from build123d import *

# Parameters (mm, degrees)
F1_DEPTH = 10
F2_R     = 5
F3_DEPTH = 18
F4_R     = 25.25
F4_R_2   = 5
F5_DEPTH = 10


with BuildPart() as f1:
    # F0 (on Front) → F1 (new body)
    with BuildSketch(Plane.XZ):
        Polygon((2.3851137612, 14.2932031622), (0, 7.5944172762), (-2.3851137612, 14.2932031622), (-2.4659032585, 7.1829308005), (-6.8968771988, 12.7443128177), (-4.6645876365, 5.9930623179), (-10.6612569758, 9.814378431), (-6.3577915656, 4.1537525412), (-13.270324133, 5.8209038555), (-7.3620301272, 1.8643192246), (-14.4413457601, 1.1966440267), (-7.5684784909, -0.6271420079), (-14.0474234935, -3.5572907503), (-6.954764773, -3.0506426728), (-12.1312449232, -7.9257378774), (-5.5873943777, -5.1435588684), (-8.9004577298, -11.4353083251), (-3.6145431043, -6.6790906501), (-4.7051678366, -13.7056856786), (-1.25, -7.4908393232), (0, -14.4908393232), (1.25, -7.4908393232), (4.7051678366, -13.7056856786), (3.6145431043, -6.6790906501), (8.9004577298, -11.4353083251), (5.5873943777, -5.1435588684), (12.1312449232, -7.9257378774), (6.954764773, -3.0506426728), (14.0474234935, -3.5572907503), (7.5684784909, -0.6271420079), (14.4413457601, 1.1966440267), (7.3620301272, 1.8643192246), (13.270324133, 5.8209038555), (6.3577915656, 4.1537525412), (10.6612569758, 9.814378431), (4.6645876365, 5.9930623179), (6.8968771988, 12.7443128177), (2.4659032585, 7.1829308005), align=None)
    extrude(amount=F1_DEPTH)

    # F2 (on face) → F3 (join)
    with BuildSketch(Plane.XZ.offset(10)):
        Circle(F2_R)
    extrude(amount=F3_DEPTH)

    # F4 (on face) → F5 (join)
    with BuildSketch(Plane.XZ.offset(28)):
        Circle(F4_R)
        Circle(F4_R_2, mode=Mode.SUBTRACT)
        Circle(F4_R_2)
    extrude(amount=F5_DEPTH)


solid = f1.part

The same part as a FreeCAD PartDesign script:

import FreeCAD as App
import Part
import Sketcher
from FreeCAD import Vector
Q = App.Units.Quantity

doc = App.newDocument("Part")
body = doc.addObject("PartDesign::Body", "Body")

# Sketch on XZ plane
sketch1 = body.newObject("Sketcher::SketchObject", "Sketch")
sketch1.AttachmentSupport = (doc.getObject("XZ_Plane"), [""])
sketch1.MapMode = "FlatFace"
sketch1.addGeometry(Part.LineSegment(Vector(2, 14, 0), Vector(0, 8, 0)), False)
sketch1.addGeometry(Part.LineSegment(Vector(0, 8, 0), Vector(-2, 14, 0)), False)
sketch1.addGeometry(Part.LineSegment(Vector(-2, 14, 0), Vector(-2, 7, 0)), False)
sketch1.addGeometry(Part.LineSegment(Vector(-2, 7, 0), Vector(-7, 13, 0)), False)
sketch1.addGeometry(Part.LineSegment(Vector(-7, 13, 0), Vector(-5, 6, 0)), False)
sketch1.addGeometry(Part.LineSegment(Vector(-5, 6, 0), Vector(-11, 10, 0)), False)
sketch1.addGeometry(Part.LineSegment(Vector(-11, 10, 0), Vector(-6, 4, 0)), False)
sketch1.addGeometry(Part.LineSegment(Vector(-6, 4, 0), Vector(-13, 6, 0)), False)
sketch1.addGeometry(Part.LineSegment(Vector(-13, 6, 0), Vector(-7, 2, 0)), False)
sketch1.addGeometry(Part.LineSegment(Vector(-7, 2, 0), Vector(-14, 1, 0)), False)
sketch1.addGeometry(Part.LineSegment(Vector(-14, 1, 0), Vector(-8, -1, 0)), False)
sketch1.addGeometry(Part.LineSegment(Vector(-8, -1, 0), Vector(-14, -4, 0)), False)
sketch1.addGeometry(Part.LineSegment(Vector(-14, -4, 0), Vector(-7, -3, 0)), False)
sketch1.addGeometry(Part.LineSegment(Vector(-7, -3, 0), Vector(-12, -8, 0)), False)
sketch1.addGeometry(Part.LineSegment(Vector(-12, -8, 0), Vector(-6, -5, 0)), False)
sketch1.addGeometry(Part.LineSegment(Vector(-6, -5, 0), Vector(-9, -11, 0)), False)
sketch1.addGeometry(Part.LineSegment(Vector(-9, -11, 0), Vector(-4, -7, 0)), False)
sketch1.addGeometry(Part.LineSegment(Vector(-4, -7, 0), Vector(-5, -14, 0)), False)
sketch1.addGeometry(Part.LineSegment(Vector(-5, -14, 0), Vector(-1, -7, 0)), False)
sketch1.addGeometry(Part.LineSegment(Vector(-1, -7, 0), Vector(0, -14, 0)), False)
sketch1.addGeometry(Part.LineSegment(Vector(0, -14, 0), Vector(1, -7, 0)), False)
sketch1.addGeometry(Part.LineSegment(Vector(1, -7, 0), Vector(5, -14, 0)), False)
sketch1.addGeometry(Part.LineSegment(Vector(5, -14, 0), Vector(4, -7, 0)), False)
sketch1.addGeometry(Part.LineSegment(Vector(4, -7, 0), Vector(9, -11, 0)), False)
sketch1.addGeometry(Part.LineSegment(Vector(9, -11, 0), Vector(6, -5, 0)), False)
sketch1.addGeometry(Part.LineSegment(Vector(6, -5, 0), Vector(12, -8, 0)), False)
sketch1.addGeometry(Part.LineSegment(Vector(12, -8, 0), Vector(7, -3, 0)), False)
sketch1.addGeometry(Part.LineSegment(Vector(7, -3, 0), Vector(14, -4, 0)), False)
sketch1.addGeometry(Part.LineSegment(Vector(14, -4, 0), Vector(8, -1, 0)), False)
sketch1.addGeometry(Part.LineSegment(Vector(8, -1, 0), Vector(14, 1, 0)), False)
sketch1.addGeometry(Part.LineSegment(Vector(14, 1, 0), Vector(7, 2, 0)), False)
sketch1.addGeometry(Part.LineSegment(Vector(7, 2, 0), Vector(13, 6, 0)), False)
sketch1.addGeometry(Part.LineSegment(Vector(13, 6, 0), Vector(6, 4, 0)), False)
sketch1.addGeometry(Part.LineSegment(Vector(6, 4, 0), Vector(11, 10, 0)), False)
sketch1.addGeometry(Part.LineSegment(Vector(11, 10, 0), Vector(5, 6, 0)), False)
sketch1.addGeometry(Part.LineSegment(Vector(5, 6, 0), Vector(7, 13, 0)), False)
sketch1.addGeometry(Part.LineSegment(Vector(7, 13, 0), Vector(2, 7, 0)), False)
sketch1.addGeometry(Part.LineSegment(Vector(2, 7, 0), Vector(2, 14, 0)), False)
sketch1.addConstraint(Sketcher.Constraint("Coincident", 0, 2, 1, 1))
sketch1.addConstraint(Sketcher.Constraint("Coincident", 1, 2, 2, 1))
sketch1.addConstraint(Sketcher.Constraint("Coincident", 2, 2, 3, 1))
sketch1.addConstraint(Sketcher.Constraint("Coincident", 3, 2, 4, 1))
sketch1.addConstraint(Sketcher.Constraint("Coincident", 4, 2, 5, 1))
sketch1.addConstraint(Sketcher.Constraint("Coincident", 5, 2, 6, 1))
sketch1.addConstraint(Sketcher.Constraint("Coincident", 6, 2, 7, 1))
sketch1.addConstraint(Sketcher.Constraint("Coincident", 7, 2, 8, 1))
sketch1.addConstraint(Sketcher.Constraint("Coincident", 8, 2, 9, 1))
sketch1.addConstraint(Sketcher.Constraint("Coincident", 9, 2, 10, 1))
sketch1.addConstraint(Sketcher.Constraint("Coincident", 10, 2, 11, 1))
sketch1.addConstraint(Sketcher.Constraint("Coincident", 11, 2, 12, 1))
sketch1.addConstraint(Sketcher.Constraint("Coincident", 12, 2, 13, 1))
sketch1.addConstraint(Sketcher.Constraint("Coincident", 13, 2, 14, 1))
sketch1.addConstraint(Sketcher.Constraint("Coincident", 14, 2, 15, 1))
sketch1.addConstraint(Sketcher.Constraint("Coincident", 15, 2, 16, 1))
sketch1.addConstraint(Sketcher.Constraint("Coincident", 16, 2, 17, 1))
sketch1.addConstraint(Sketcher.Constraint("Coincident", 17, 2, 18, 1))
sketch1.addConstraint(Sketcher.Constraint("Coincident", 18, 2, 19, 1))
sketch1.addConstraint(Sketcher.Constraint("Coincident", 19, 2, 20, 1))
sketch1.addConstraint(Sketcher.Constraint("Coincident", 20, 2, 21, 1))
sketch1.addConstraint(Sketcher.Constraint("Coincident", 21, 2, 22, 1))
sketch1.addConstraint(Sketcher.Constraint("Coincident", 22, 2, 23, 1))
sketch1.addConstraint(Sketcher.Constraint("Coincident", 23, 2, 24, 1))
sketch1.addConstraint(Sketcher.Constraint("Coincident", 24, 2, 25, 1))
sketch1.addConstraint(Sketcher.Constraint("Coincident", 25, 2, 26, 1))
sketch1.addConstraint(Sketcher.Constraint("Coincident", 26, 2, 27, 1))
sketch1.addConstraint(Sketcher.Constraint("Coincident", 27, 2, 28, 1))
sketch1.addConstraint(Sketcher.Constraint("Coincident", 28, 2, 29, 1))
sketch1.addConstraint(Sketcher.Constraint("Coincident", 29, 2, 30, 1))
sketch1.addConstraint(Sketcher.Constraint("Coincident", 30, 2, 31, 1))
sketch1.addConstraint(Sketcher.Constraint("Coincident", 31, 2, 32, 1))
sketch1.addConstraint(Sketcher.Constraint("Coincident", 32, 2, 33, 1))
sketch1.addConstraint(Sketcher.Constraint("Coincident", 33, 2, 34, 1))
sketch1.addConstraint(Sketcher.Constraint("Coincident", 34, 2, 35, 1))
sketch1.addConstraint(Sketcher.Constraint("Coincident", 35, 2, 36, 1))
sketch1.addConstraint(Sketcher.Constraint("Coincident", 36, 2, 37, 1))
sketch1.addConstraint(Sketcher.Constraint("Coincident", 37, 2, 0, 1))
sketch1.addConstraint(Sketcher.Constraint("Symmetric", 18, 2, 20, 2, -2))
sketch1.addConstraint(Sketcher.Constraint("Symmetric", 17, 2, 21, 2, -2))
sketch1.addConstraint(Sketcher.Constraint("Symmetric", 16, 2, 22, 2, -2))
sketch1.addConstraint(Sketcher.Constraint("Symmetric", 15, 2, 23, 2, -2))
sketch1.addConstraint(Sketcher.Constraint("Symmetric", 14, 2, 24, 2, -2))
sketch1.addConstraint(Sketcher.Constraint("Symmetric", 13, 2, 25, 2, -2))
sketch1.addConstraint(Sketcher.Constraint("Symmetric", 12, 2, 26, 2, -2))
sketch1.addConstraint(Sketcher.Constraint("Symmetric", 11, 2, 27, 2, -2))
sketch1.addConstraint(Sketcher.Constraint("Symmetric", 10, 2, 28, 2, -2))
sketch1.addConstraint(Sketcher.Constraint("Symmetric", 9, 2, 29, 2, -2))
sketch1.addConstraint(Sketcher.Constraint("Symmetric", 8, 2, 30, 2, -2))
sketch1.addConstraint(Sketcher.Constraint("Symmetric", 7, 2, 31, 2, -2))
sketch1.addConstraint(Sketcher.Constraint("Symmetric", 6, 2, 32, 2, -2))
sketch1.addConstraint(Sketcher.Constraint("Symmetric", 5, 2, 33, 2, -2))
sketch1.addConstraint(Sketcher.Constraint("Symmetric", 4, 2, 34, 2, -2))
sketch1.addConstraint(Sketcher.Constraint("Symmetric", 3, 2, 35, 2, -2))
sketch1.addConstraint(Sketcher.Constraint("Symmetric", 2, 2, 36, 2, -2))
sketch1.addConstraint(Sketcher.Constraint("Symmetric", 1, 2, 37, 2, -2))
sketch1.addConstraint(Sketcher.Constraint("PointOnObject", 0, 2, -2))
sketch1.addConstraint(Sketcher.Constraint("PointOnObject", 19, 2, -2))
sketch1.addConstraint(Sketcher.Constraint("Equal", 1, 2))
sketch1.addConstraint(Sketcher.Constraint("Equal", 2, 3))
sketch1.addConstraint(Sketcher.Constraint("Equal", 3, 4))
sketch1.addConstraint(Sketcher.Constraint("Equal", 4, 5))
sketch1.addConstraint(Sketcher.Constraint("Equal", 5, 6))
sketch1.addConstraint(Sketcher.Constraint("Equal", 6, 7))
sketch1.addConstraint(Sketcher.Constraint("Equal", 7, 8))
sketch1.addConstraint(Sketcher.Constraint("Equal", 8, 9))
sketch1.addConstraint(Sketcher.Constraint("Equal", 9, 10))
sketch1.addConstraint(Sketcher.Constraint("Equal", 10, 11))
sketch1.addConstraint(Sketcher.Constraint("Equal", 11, 12))
sketch1.addConstraint(Sketcher.Constraint("Equal", 12, 13))
sketch1.addConstraint(Sketcher.Constraint("Equal", 13, 14))
sketch1.addConstraint(Sketcher.Constraint("Equal", 14, 15))
sketch1.addConstraint(Sketcher.Constraint("Equal", 15, 16))
sketch1.addConstraint(Sketcher.Constraint("Equal", 16, 17))
sketch1.addConstraint(Sketcher.Constraint("Equal", 17, 18))
sketch1.addConstraint(Sketcher.Constraint("Equal", 18, 19))
sketch1.addConstraint(Sketcher.Constraint("DistanceY", 19, 2, 18, 2, Q("7 mm")))
sketch1.addConstraint(Sketcher.Constraint("DistanceX", 18, 2, 20, 2, Q("2.5 mm")))
sketch1.addConstraint(Sketcher.Constraint("DistanceX", 11, 2, 7, 2, Q("0.777099 mm")))
sketch1.addConstraint(Sketcher.Constraint("DistanceY", 12, 2, 10, 2, Q("2.423501 mm")))
sketch1.addConstraint(Sketcher.Constraint("DistanceX", 9, 2, 13, 2, Q("2.310101 mm")))
sketch1.addConstraint(Sketcher.Constraint("DistanceX", 13, 2, 16, 2, Q("8.516702 mm")))
sketch1.addConstraint(Sketcher.Constraint("DistanceY", 25, 2, 20, 2, Q("0.434899 mm")))
sketch1.addConstraint(Sketcher.Constraint("DistanceY", 22, 2, 27, 2, Q("3.1218 mm")))
sketch1.addConstraint(Sketcher.Constraint("DistanceY", -1, 1, 2, 2, Q("7.182931 mm")))
sketch1.addConstraint(Sketcher.Constraint("DistanceY", -1, 1, 5, 2, Q("9.814378 mm")))
sketch1.addConstraint(Sketcher.Constraint("DistanceX", 6, 2, -1, 1, Q("6.357792 mm")))
sketch1.addConstraint(Sketcher.Constraint("DistanceX", 8, 2, -1, 1, Q("7.36203 mm")))
sketch1.addConstraint(Sketcher.Constraint("DistanceY", -1, 1, 8, 2, Q("1.864319 mm")))
sketch1.addConstraint(Sketcher.Constraint("DistanceX", 10, 2, -1, 1, Q("7.568478 mm")))
sketch1.addConstraint(Sketcher.Constraint("DistanceY", 11, 2, -1, 1, Q("3.557291 mm")))
sketch1.addConstraint(Sketcher.Constraint("DistanceY", 14, 2, -1, 1, Q("5.143559 mm")))
sketch1.addConstraint(Sketcher.Constraint("DistanceY", 15, 2, -1, 1, Q("11.435308 mm")))
sketch1.addConstraint(Sketcher.Constraint("DistanceX", 2, 2, 1, 2, Q("0.080789 mm")))
sketch1.addConstraint(Sketcher.Constraint("DistanceY", 3, 2, 1, 2, Q("1.54889 mm")))
sketch1.addConstraint(Sketcher.Constraint("DistanceY", 4, 2, 2, 2, Q("1.189868 mm")))
pad1 = body.newObject("PartDesign::Pad", "Pad")
pad1.Profile = sketch1
pad1.Length = 10

# Sketch on XZ plane
sketch2 = body.newObject("Sketcher::SketchObject", "Sketch001")
sketch2.AttachmentSupport = (doc.getObject("XZ_Plane"), [""])
sketch2.MapMode = "FlatFace"
sketch2.AttachmentOffset = App.Placement(Vector(0, 0, 10), App.Rotation())
sketch2.addGeometry(Part.Circle(Vector(0, 0, 0), Vector(0, 0, 1), 5), False)
sketch2.addConstraint(Sketcher.Constraint("Coincident", 0, 3, -1, 1))
sketch2.addConstraint(Sketcher.Constraint("Diameter", 0, Q("10 mm")))
pad2 = body.newObject("PartDesign::Pad", "Pad001")
pad2.Profile = sketch2
pad2.Length = 18

# Sketch on XZ plane
sketch3 = body.newObject("Sketcher::SketchObject", "Sketch002")
sketch3.AttachmentSupport = (doc.getObject("XZ_Plane"), [""])
sketch3.MapMode = "FlatFace"
sketch3.AttachmentOffset = App.Placement(Vector(0, 0, 28), App.Rotation())
sketch3.addGeometry(Part.Circle(Vector(0, 0, 0), Vector(0, 0, 1), 25), False)
sketch3.addConstraint(Sketcher.Constraint("Coincident", 0, 3, -1, 1))
sketch3.addConstraint(Sketcher.Constraint("Diameter", 0, Q("50.5 mm")))
pad3 = body.newObject("PartDesign::Pad", "Pad002")
pad3.Profile = sketch3
pad3.Length = 10

doc.recompute()
